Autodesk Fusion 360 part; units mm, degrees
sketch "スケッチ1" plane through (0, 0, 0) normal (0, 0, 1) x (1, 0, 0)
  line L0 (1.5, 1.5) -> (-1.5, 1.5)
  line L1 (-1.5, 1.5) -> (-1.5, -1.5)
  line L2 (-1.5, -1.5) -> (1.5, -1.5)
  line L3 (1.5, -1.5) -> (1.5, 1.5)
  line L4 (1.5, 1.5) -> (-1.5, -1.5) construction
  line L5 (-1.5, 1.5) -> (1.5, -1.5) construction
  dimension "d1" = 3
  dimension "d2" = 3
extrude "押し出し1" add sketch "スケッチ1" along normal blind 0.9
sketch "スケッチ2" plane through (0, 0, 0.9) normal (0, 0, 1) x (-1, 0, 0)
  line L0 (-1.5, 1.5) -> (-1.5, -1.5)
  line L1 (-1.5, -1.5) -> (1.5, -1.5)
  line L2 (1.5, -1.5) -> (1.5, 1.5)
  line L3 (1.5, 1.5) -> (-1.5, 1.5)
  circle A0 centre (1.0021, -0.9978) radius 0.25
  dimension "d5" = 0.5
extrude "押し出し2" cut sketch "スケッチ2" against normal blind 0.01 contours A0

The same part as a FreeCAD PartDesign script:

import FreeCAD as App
import Part
import Sketcher

V = App.Vector
Q = App.Units.Quantity

doc = App.newDocument("Part")
params = doc.addObject("Spreadsheet::Sheet", "Params")
for row, (alias, value) in enumerate([
    ("sketch1_width", "3 mm"),
    ("pad1_length", "0.9 mm"),
    ("sketch2_diameter", "0.5 mm"),
    ("pocket1_length", "0.01 mm"),
], start=1):
    params.set(f"A{row}", alias)
    params.set(f"B{row}", "=" + value)
    params.setAlias(f"B{row}", alias)

body = doc.addObject("PartDesign::Body", "Body")

sketch1 = doc.addObject("Sketcher::SketchObject", "Sketch")
body.addObject(sketch1)
sketch1.AttachmentSupport = (doc.XY_Plane, [""])
sketch1.MapMode = "FlatFace"
sketch1.addGeometry([
    Part.LineSegment(V(1.5, -1.5, 0), V(1.5, 1.5, 0)),
    Part.LineSegment(V(1.5, 1.5, 0), V(-1.5, 1.5, 0)),
    Part.LineSegment(V(-1.5, 1.5, 0), V(-1.5, -1.5, 0)),
    Part.LineSegment(V(-1.5, -1.5, 0), V(1.5, -1.5, 0)),
], False)
sketch1.addConstraint([
    Sketcher.Constraint("Coincident", 0, 2, 1, 1),
    Sketcher.Constraint("Coincident", 1, 2, 2, 1),
    Sketcher.Constraint("Coincident", 2, 2, 3, 1),
    Sketcher.Constraint("Coincident", 3, 2, 0, 1),
    Sketcher.Constraint("Vertical", 0),
    Sketcher.Constraint("Horizontal", 1),
    Sketcher.Constraint("Vertical", 2),
    Sketcher.Constraint("Horizontal", 3),
    Sketcher.Constraint("Symmetric", 0, 2, 2, 2, -1, 1),
    Sketcher.Constraint("Equal", 3, 0),
    Sketcher.Constraint("DistanceX", 1, 2, 1, 1, Q("3 mm")),
])
sketch1.setExpression("Constraints[10]", "Params.sketch1_width")
pad1 = doc.addObject("PartDesign::Pad", "Pad")
body.addObject(pad1)
pad1.Profile = sketch1
pad1.setExpression("Length", "Params.pad1_length")

sketch2 = doc.addObject("Sketcher::SketchObject", "Sketch001")
body.addObject(sketch2)
sketch2.AttachmentSupport = (doc.XY_Plane, [""])
sketch2.MapMode = "FlatFace"
sketch2.AttachmentOffset = App.Placement(V(0, 0, 0.9), App.Rotation())
sketch2.addGeometry(Part.Circle(V(-1, 1, 0), V(0, 0, 1), 0.25), False)
sketch2.addConstraint([
    Sketcher.Constraint("Diameter", 0, Q("0.5 mm")),
    Sketcher.Constraint("DistanceX", 0, 3, -1, 1, Q("1.002 mm")),
    Sketcher.Constraint("DistanceY", -1, 1, 0, 3, Q("0.9978 mm")),
])
sketch2.setExpression("Constraints[0]", "Params.sketch2_diameter")
pocket1 = doc.addObject("PartDesign::Pocket", "Pocket")
body.addObject(pocket1)
pocket1.Profile = sketch2
pocket1.setExpression("Length", "Params.pocket1_length")

doc.recompute()
